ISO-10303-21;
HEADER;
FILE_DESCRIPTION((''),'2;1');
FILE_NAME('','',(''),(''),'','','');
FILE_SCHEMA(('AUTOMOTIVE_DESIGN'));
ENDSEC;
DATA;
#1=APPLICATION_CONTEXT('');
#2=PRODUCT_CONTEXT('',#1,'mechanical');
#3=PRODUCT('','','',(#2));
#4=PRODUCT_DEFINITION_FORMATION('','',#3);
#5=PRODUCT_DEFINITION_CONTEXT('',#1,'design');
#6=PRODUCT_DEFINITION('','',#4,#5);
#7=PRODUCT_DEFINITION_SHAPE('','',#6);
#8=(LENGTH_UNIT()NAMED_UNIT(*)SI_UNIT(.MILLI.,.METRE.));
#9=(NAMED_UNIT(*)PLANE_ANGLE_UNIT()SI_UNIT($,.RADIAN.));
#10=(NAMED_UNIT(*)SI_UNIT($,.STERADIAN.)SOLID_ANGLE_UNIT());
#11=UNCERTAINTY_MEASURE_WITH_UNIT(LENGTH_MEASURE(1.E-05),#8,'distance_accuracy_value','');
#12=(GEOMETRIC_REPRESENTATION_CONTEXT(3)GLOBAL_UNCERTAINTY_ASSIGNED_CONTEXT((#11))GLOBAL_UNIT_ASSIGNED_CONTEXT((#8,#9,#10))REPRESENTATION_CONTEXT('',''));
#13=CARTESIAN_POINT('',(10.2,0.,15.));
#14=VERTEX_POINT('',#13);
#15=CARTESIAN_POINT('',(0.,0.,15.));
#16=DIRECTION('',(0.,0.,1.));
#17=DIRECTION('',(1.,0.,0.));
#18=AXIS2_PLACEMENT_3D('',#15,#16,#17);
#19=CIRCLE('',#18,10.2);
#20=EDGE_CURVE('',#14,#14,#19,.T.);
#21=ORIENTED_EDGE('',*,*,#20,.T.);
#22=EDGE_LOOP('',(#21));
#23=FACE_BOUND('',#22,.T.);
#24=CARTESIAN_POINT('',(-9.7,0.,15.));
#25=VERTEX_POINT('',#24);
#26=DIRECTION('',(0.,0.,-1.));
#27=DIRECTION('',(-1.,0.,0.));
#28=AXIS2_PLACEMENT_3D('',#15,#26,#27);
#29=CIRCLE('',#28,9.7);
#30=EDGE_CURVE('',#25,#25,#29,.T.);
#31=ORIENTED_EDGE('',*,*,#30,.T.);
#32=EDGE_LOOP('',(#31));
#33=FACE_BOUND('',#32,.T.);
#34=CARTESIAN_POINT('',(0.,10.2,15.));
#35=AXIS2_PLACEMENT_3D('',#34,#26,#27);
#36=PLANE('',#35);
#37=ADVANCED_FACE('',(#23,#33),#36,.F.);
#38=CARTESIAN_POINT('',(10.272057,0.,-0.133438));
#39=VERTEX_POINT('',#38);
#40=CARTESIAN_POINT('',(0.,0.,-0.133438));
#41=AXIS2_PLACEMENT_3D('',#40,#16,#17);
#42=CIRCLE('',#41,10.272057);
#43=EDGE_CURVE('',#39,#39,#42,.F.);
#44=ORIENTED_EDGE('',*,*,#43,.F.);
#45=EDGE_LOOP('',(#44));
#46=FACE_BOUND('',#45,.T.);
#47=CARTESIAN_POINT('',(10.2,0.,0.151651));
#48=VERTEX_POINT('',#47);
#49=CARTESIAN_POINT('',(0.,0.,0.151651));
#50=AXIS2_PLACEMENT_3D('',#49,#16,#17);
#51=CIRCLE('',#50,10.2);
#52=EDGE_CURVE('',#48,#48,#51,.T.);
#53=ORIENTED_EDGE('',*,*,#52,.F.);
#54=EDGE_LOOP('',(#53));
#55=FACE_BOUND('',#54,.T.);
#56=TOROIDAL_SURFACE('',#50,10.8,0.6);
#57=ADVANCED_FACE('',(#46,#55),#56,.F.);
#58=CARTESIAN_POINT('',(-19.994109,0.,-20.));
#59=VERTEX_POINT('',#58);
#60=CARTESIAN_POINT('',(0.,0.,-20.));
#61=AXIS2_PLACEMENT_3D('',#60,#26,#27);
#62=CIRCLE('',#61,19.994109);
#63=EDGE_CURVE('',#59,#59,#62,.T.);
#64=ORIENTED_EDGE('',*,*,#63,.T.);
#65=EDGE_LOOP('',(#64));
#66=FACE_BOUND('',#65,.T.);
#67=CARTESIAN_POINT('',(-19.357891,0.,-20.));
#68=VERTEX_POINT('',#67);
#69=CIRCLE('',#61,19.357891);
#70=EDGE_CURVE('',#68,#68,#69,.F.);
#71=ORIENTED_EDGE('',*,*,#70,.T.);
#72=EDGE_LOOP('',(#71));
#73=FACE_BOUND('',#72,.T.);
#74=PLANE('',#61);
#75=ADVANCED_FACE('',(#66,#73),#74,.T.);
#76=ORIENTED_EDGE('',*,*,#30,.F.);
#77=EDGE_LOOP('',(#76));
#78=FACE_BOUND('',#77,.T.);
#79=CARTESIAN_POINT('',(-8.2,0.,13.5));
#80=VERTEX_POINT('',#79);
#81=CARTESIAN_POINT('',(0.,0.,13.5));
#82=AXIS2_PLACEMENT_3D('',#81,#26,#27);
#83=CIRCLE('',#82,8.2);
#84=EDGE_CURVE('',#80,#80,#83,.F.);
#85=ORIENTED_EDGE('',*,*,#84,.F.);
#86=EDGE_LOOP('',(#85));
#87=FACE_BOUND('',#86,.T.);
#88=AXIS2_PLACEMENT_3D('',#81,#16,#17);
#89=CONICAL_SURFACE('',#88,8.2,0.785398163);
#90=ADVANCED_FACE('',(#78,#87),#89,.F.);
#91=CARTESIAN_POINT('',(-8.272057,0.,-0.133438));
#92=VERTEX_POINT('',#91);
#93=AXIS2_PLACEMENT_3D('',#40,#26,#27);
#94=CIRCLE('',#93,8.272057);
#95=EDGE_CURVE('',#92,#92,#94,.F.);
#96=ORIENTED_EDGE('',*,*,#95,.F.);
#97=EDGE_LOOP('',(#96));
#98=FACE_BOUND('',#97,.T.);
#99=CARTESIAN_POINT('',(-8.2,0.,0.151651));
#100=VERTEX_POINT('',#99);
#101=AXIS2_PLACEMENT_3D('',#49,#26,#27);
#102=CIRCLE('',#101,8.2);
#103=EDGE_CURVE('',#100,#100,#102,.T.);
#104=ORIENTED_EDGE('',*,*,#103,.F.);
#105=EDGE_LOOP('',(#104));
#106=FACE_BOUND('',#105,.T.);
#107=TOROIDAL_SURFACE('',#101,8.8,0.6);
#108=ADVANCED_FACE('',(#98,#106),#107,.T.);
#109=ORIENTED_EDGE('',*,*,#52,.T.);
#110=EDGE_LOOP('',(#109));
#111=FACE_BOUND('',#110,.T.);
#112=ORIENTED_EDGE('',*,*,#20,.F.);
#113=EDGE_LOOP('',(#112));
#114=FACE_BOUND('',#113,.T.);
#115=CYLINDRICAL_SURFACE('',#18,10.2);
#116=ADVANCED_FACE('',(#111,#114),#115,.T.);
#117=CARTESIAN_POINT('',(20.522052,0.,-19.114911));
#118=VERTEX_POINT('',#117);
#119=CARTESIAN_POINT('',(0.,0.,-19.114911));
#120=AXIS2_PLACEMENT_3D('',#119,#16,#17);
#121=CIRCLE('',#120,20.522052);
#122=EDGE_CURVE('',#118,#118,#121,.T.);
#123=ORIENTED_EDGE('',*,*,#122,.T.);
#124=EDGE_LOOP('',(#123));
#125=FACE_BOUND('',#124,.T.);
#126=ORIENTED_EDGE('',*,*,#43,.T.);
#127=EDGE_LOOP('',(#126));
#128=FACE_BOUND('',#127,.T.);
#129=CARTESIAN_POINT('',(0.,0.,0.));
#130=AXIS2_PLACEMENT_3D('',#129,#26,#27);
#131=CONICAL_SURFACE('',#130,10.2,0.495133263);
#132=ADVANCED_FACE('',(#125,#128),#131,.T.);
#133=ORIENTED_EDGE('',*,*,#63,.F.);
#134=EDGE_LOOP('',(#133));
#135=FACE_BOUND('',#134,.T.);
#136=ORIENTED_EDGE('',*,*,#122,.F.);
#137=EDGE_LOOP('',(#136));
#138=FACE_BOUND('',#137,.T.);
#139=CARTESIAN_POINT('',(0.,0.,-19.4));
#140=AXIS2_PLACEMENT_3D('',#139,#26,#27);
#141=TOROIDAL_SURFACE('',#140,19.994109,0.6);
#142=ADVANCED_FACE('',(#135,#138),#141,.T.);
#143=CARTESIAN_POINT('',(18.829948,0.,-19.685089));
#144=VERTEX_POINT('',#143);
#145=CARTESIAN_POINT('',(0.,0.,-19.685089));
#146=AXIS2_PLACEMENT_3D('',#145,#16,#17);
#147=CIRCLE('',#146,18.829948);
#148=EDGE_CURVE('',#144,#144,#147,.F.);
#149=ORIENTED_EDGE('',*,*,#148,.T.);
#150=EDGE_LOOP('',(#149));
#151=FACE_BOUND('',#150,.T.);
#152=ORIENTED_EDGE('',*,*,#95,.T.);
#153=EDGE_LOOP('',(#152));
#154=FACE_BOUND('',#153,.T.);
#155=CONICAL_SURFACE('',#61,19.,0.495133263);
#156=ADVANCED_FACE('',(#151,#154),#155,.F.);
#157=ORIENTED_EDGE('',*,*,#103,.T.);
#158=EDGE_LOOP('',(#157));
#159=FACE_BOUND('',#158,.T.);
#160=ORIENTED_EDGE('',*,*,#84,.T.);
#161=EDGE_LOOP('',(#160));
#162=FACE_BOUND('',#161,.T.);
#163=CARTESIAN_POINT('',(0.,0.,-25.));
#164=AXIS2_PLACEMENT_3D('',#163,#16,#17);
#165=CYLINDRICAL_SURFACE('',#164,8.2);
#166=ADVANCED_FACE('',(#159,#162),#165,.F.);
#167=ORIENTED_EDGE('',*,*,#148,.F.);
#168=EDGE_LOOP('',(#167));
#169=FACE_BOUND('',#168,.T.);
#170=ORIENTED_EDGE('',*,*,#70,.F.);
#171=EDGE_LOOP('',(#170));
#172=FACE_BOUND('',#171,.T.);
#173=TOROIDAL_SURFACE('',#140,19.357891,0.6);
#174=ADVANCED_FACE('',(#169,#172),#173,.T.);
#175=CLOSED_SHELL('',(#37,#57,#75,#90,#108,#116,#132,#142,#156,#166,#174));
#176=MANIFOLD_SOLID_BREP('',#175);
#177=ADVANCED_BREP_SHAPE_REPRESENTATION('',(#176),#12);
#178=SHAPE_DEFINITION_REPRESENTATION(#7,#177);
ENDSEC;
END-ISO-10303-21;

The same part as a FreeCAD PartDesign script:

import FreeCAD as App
import Part
import Sketcher


def edges_at(feature, points):
    """Names of the edges that pass closest to the given points."""
    edges = feature.Shape.Edges
    near = lambda p: min(range(len(edges)), key=lambda i: edges[i].distToShape(Part.Vertex(*p))[0])
    return sorted({f"Edge{near(p) + 1}" for p in points})


def add_polygon(sketch, points):
    """Adds a closed chain of lines whose ends are joined by coincident constraints."""
    first, n = sketch.GeometryCount, len(points)
    for a, b in zip(points, points[1:] + points[:1]):
        sketch.addGeometry(Part.LineSegment(App.Vector(*a, 0), App.Vector(*b, 0)), False)
    for i in range(n):
        sketch.addConstraint(Sketcher.Constraint("Coincident", first + i, 2, first + (i + 1) % n, 1))

doc = App.newDocument("Part")
body = doc.addObject("PartDesign::Body", "Body")

sketch1 = doc.addObject("Sketcher::SketchObject", "Sketch")
body.addObject(sketch1)
sketch1.AttachmentSupport = (doc.YZ_Plane, [""])
sketch1.MapMode = "FlatFace"
add_polygon(sketch1, [(10.2, 15), (0, 15), (0, 0), (8.2, 0), (19, -20), (21, -20), (10.2, 0)])
sketch1.addConstraint([
    Sketcher.Constraint("Horizontal", 0),
    Sketcher.Constraint("Vertical", 1),
    Sketcher.Constraint("Horizontal", 2),
    Sketcher.Constraint("Horizontal", 4),
    Sketcher.Constraint("Vertical", 6),
    Sketcher.Constraint("Coincident", 1, 2, -1, 1),
    Sketcher.Constraint("PointOnObject", 5, 2, -1),
    Sketcher.Constraint("Parallel", 3, 5),
    Sketcher.Constraint("DistanceX", 4, 1, 4, 2, 2.0),
    Sketcher.Constraint("DistanceY", 1, 2, 1, 1, 15.0),
    Sketcher.Constraint("DistanceX", 0, 2, 0, 1, 10.2),
    Sketcher.Constraint("DistanceX", -1, 1, 3, 2, 19.0),
    Sketcher.Constraint("DistanceY", 3, 2, -1, 1, 20.0),
])
revolution = doc.addObject("PartDesign::Revolution", "Revolution")
body.addObject(revolution)
revolution.Profile = sketch1
revolution.ReferenceAxis = (sketch1, ["V_Axis"])
revolution.Angle = 360

sketch2 = doc.addObject("Sketcher::SketchObject", "Sketch001")
body.addObject(sketch2)
sketch2.AttachmentSupport = (doc.XY_Plane, [""])
sketch2.MapMode = "FlatFace"
sketch2.AttachmentOffset = App.Placement(App.Vector(0, 0, 15), App.Rotation())
sketch2.addGeometry(Part.Circle(App.Vector(0, 0, 0), App.Vector(0, 0, 1), 8.2), False)
sketch2.addConstraint([
    Sketcher.Constraint("Coincident", 0, 3, -1, 1),
    Sketcher.Constraint("Diameter", 0, 16.4),
])
pocket1 = doc.addObject("PartDesign::Pocket", "Pocket")
body.addObject(pocket1)
pocket1.Profile = sketch2
pocket1.Length = 40
doc.recompute()

chamfer = doc.addObject("PartDesign::Chamfer", "Chamfer")
body.addObject(chamfer)
chamfer.Base = (pocket1, edges_at(pocket1, [(-8.2, 0, 15)]))
chamfer.Size = 1.5
doc.recompute()

fillet = doc.addObject("PartDesign::Fillet", "Fillet")
body.addObject(fillet)
fillet.Base = (chamfer, edges_at(chamfer, [(-21, 0, -20), (-19, 0, -20)]))
fillet.Radius = 0.6
doc.recompute()

fillet2 = doc.addObject("PartDesign::Fillet", "Fillet001")
body.addObject(fillet2)
fillet2.Base = (fillet, edges_at(fillet, [(-10.2, 0, 0)]))
fillet2.Radius = 0.6
doc.recompute()

fillet3 = doc.addObject("PartDesign::Fillet", "Fillet002")
body.addObject(fillet3)
fillet3.Base = (fillet2, edges_at(fillet2, [(-8.2, 0, 0)]))
fillet3.Radius = 0.6

doc.recompute()
